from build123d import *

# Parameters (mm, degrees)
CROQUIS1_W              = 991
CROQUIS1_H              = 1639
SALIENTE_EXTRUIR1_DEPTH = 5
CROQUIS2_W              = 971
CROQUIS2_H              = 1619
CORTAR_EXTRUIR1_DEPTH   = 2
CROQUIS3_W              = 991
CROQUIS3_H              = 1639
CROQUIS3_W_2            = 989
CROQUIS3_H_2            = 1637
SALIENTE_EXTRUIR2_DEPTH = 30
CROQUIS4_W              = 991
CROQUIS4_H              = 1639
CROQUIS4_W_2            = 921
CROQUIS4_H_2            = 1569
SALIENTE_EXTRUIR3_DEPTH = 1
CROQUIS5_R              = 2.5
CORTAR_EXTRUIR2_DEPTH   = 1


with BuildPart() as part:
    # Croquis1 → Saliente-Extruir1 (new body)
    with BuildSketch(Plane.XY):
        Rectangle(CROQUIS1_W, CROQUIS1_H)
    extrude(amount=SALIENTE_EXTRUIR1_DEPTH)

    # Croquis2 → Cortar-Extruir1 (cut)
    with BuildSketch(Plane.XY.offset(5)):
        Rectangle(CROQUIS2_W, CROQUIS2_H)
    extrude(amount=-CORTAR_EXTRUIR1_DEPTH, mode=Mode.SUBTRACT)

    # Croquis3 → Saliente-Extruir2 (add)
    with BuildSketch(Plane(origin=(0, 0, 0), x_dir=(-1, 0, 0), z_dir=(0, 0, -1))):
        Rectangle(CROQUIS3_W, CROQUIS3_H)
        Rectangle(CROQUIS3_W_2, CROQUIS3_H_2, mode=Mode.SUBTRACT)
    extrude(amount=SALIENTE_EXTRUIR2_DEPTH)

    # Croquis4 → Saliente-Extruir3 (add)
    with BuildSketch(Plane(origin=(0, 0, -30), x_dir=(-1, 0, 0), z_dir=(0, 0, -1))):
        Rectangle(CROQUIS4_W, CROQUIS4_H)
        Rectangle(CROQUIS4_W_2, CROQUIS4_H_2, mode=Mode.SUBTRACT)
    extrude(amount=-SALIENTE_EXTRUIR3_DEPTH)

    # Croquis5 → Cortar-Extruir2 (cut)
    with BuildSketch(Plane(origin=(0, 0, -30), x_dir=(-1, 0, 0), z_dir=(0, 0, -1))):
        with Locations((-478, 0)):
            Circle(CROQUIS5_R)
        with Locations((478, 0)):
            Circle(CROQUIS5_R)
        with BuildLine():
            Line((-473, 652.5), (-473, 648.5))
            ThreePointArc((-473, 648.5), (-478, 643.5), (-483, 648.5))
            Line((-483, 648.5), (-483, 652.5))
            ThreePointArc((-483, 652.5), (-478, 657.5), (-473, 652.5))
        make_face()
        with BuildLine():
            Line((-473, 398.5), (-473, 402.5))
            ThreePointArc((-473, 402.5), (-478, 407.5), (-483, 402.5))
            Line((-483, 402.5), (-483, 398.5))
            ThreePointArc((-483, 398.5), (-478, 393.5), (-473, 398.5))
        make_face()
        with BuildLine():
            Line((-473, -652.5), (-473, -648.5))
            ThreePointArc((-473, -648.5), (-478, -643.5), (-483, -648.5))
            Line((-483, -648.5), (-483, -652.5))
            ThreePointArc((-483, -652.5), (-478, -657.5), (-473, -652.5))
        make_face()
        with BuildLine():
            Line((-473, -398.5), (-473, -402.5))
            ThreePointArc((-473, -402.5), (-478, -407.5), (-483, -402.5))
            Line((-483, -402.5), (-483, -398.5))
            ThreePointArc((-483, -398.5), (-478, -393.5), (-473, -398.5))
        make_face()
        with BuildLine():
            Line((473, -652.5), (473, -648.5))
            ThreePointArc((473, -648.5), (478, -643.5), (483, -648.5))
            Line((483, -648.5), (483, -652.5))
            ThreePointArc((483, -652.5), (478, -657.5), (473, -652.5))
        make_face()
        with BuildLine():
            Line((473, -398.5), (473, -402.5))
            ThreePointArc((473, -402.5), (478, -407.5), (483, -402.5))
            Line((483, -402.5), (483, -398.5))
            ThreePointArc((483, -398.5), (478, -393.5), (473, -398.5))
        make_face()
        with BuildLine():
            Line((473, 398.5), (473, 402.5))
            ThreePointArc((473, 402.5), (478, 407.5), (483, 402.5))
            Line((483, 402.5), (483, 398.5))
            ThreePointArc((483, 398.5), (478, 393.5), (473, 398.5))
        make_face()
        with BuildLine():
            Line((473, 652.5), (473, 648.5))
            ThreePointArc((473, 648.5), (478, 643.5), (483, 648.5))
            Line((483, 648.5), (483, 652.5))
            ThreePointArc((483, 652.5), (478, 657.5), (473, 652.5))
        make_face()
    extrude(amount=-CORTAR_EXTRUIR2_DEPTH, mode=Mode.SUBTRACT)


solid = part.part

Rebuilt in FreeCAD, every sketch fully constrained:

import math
import FreeCAD as App
import Part
import Sketcher
Q = App.Units.Quantity

doc = App.newDocument("Part")
params = doc.addObject("Spreadsheet::Sheet", "Params")
for row, (alias, value) in enumerate([
    ("sketch1_width", "991 mm"),
    ("sketch1_height", "1639 mm"),
    ("pad1_length", "5 mm"),
    ("sketch2_width", "971 mm"),
    ("sketch2_height", "1619 mm"),
    ("pocket1_length", "2 mm"),
    ("sketch3_width", "991 mm"),
    ("sketch3_width2", "989 mm"),
    ("sketch3_height", "1639 mm"),
    ("sketch3_height2", "1637 mm"),
    ("pad2_length", "30 mm"),
    ("sketch4_width", "991 mm"),
    ("sketch4_width2", "921 mm"),
    ("sketch4_height", "1639 mm"),
    ("sketch4_height2", "1569 mm"),
    ("pad3_length", "1 mm"),
    ("sketch5_diameter", "5 mm"),
    ("sketch5_radius", "5 mm"),
    ("sketch5_height", "4 mm"),
    ("pocket2_length", "1 mm"),
], start=1):
    params.set(f"A{row}", alias)
    params.set(f"B{row}", "=" + value)
    params.setAlias(f"B{row}", alias)

body = doc.addObject("PartDesign::Body", "Body")

# Sketch on XY plane
sketch1 = doc.addObject("Sketcher::SketchObject", "Sketch")
body.addObject(sketch1)
sketch1.AttachmentSupport = (doc.XY_Plane, [""])
sketch1.MapMode = "FlatFace"
sketch1.addGeometry(Part.LineSegment(App.Vector(-496, 820, 0), App.Vector(-496, -820, 0)), False)
sketch1.addGeometry(Part.LineSegment(App.Vector(-496, -820, 0), App.Vector(496, -820, 0)), False)
sketch1.addGeometry(Part.LineSegment(App.Vector(496, -820, 0), App.Vector(496, 820, 0)), False)
sketch1.addGeometry(Part.LineSegment(App.Vector(496, 820, 0), App.Vector(-496, 820, 0)), False)
sketch1.addConstraint(Sketcher.Constraint("Coincident", 0, 2, 1, 1))
sketch1.addConstraint(Sketcher.Constraint("Coincident", 1, 2, 2, 1))
sketch1.addConstraint(Sketcher.Constraint("Coincident", 2, 2, 3, 1))
sketch1.addConstraint(Sketcher.Constraint("Coincident", 3, 2, 0, 1))
sketch1.addConstraint(Sketcher.Constraint("Vertical", 0))
sketch1.addConstraint(Sketcher.Constraint("Horizontal", 1))
sketch1.addConstraint(Sketcher.Constraint("Vertical", 2))
sketch1.addConstraint(Sketcher.Constraint("Horizontal", 3))
sketch1.addConstraint(Sketcher.Constraint("Symmetric", 0, 2, 2, 2, -1, 1))
sketch1.addConstraint(Sketcher.Constraint("DistanceX", 1, 1, 1, 2, Q("991 mm")))
sketch1.addConstraint(Sketcher.Constraint("DistanceY", 0, 2, 0, 1, Q("1639 mm")))
sketch1.setExpression("Constraints[9]", "Params.sketch1_width")
sketch1.setExpression("Constraints[10]", "Params.sketch1_height")
pad1 = doc.addObject("PartDesign::Pad", "Pad")
body.addObject(pad1)
pad1.Profile = sketch1
pad1.setExpression("Length", "Params.pad1_length")

# Sketch on XY plane
sketch2 = doc.addObject("Sketcher::SketchObject", "Sketch001")
body.addObject(sketch2)
sketch2.AttachmentSupport = (doc.XY_Plane, [""])
sketch2.MapMode = "FlatFace"
sketch2.AttachmentOffset = App.Placement(App.Vector(0, 0, 5), App.Rotation())
sketch2.addGeometry(Part.LineSegment(App.Vector(-486, 810, 0), App.Vector(-486, -810, 0)), False)
sketch2.addGeometry(Part.LineSegment(App.Vector(-486, -810, 0), App.Vector(486, -810, 0)), False)
sketch2.addGeometry(Part.LineSegment(App.Vector(486, -810, 0), App.Vector(486, 810, 0)), False)
sketch2.addGeometry(Part.LineSegment(App.Vector(486, 810, 0), App.Vector(-486, 810, 0)), False)
sketch2.addConstraint(Sketcher.Constraint("Coincident", 0, 2, 1, 1))
sketch2.addConstraint(Sketcher.Constraint("Coincident", 1, 2, 2, 1))
sketch2.addConstraint(Sketcher.Constraint("Coincident", 2, 2, 3, 1))
sketch2.addConstraint(Sketcher.Constraint("Coincident", 3, 2, 0, 1))
sketch2.addConstraint(Sketcher.Constraint("Vertical", 0))
sketch2.addConstraint(Sketcher.Constraint("Horizontal", 1))
sketch2.addConstraint(Sketcher.Constraint("Vertical", 2))
sketch2.addConstraint(Sketcher.Constraint("Horizontal", 3))
sketch2.addConstraint(Sketcher.Constraint("Symmetric", 0, 2, 2, 2, -1, 1))
sketch2.addConstraint(Sketcher.Constraint("DistanceX", 1, 1, 1, 2, Q("971 mm")))
sketch2.addConstraint(Sketcher.Constraint("DistanceY", 0, 2, 0, 1, Q("1619 mm")))
sketch2.setExpression("Constraints[9]", "Params.sketch2_width")
sketch2.setExpression("Constraints[10]", "Params.sketch2_height")
pocket1 = doc.addObject("PartDesign::Pocket", "Pocket")
body.addObject(pocket1)
pocket1.Profile = sketch2
pocket1.setExpression("Length", "Params.pocket1_length")

# Sketch on XY plane
sketch3 = doc.addObject("Sketcher::SketchObject", "Sketch002")
body.addObject(sketch3)
sketch3.AttachmentSupport = (doc.XY_Plane, [""])
sketch3.MapMode = "FlatFace"
sketch3.addGeometry(Part.LineSegment(App.Vector(496, 820, 0), App.Vector(496, -820, 0)), False)
sketch3.addGeometry(Part.LineSegment(App.Vector(496, -820, 0), App.Vector(-496, -820, 0)), False)
sketch3.addGeometry(Part.LineSegment(App.Vector(-496, -820, 0), App.Vector(-496, 820, 0)), False)
sketch3.addGeometry(Part.LineSegment(App.Vector(-496, 820, 0), App.Vector(496, 820, 0)), False)
sketch3.addGeometry(Part.LineSegment(App.Vector(-494, -818, 0), App.Vector(494, -818, 0)), False)
sketch3.addGeometry(Part.LineSegment(App.Vector(494, -818, 0), App.Vector(494, 818, 0)), False)
sketch3.addGeometry(Part.LineSegment(App.Vector(494, 818, 0), App.Vector(-494, 818, 0)), False)
sketch3.addGeometry(Part.LineSegment(App.Vector(-494, 818, 0), App.Vector(-494, -818, 0)), False)
sketch3.addConstraint(Sketcher.Constraint("Coincident", 0, 2, 1, 1))
sketch3.addConstraint(Sketcher.Constraint("Coincident", 1, 2, 2, 1))
sketch3.addConstraint(Sketcher.Constraint("Coincident", 2, 2, 3, 1))
sketch3.addConstraint(Sketcher.Constraint("Coincident", 3, 2, 0, 1))
sketch3.addConstraint(Sketcher.Constraint("Coincident", 4, 2, 5, 1))
sketch3.addConstraint(Sketcher.Constraint("Coincident", 5, 2, 6, 1))
sketch3.addConstraint(Sketcher.Constraint("Coincident", 6, 2, 7, 1))
sketch3.addConstraint(Sketcher.Constraint("Coincident", 7, 2, 4, 1))
sketch3.addConstraint(Sketcher.Constraint("Vertical", 0))
sketch3.addConstraint(Sketcher.Constraint("Horizontal", 1))
sketch3.addConstraint(Sketcher.Constraint("Vertical", 2))
sketch3.addConstraint(Sketcher.Constraint("Horizontal", 3))
sketch3.addConstraint(Sketcher.Constraint("Horizontal", 4))
sketch3.addConstraint(Sketcher.Constraint("Vertical", 5))
sketch3.addConstraint(Sketcher.Constraint("Horizontal", 6))
sketch3.addConstraint(Sketcher.Constraint("Vertical", 7))
sketch3.addConstraint(Sketcher.Constraint("Symmetric", 0, 2, 2, 2, -1, 1))
sketch3.addConstraint(Sketcher.Constraint("Symmetric", 4, 2, 6, 2, -1, 1))
sketch3.addConstraint(Sketcher.Constraint("DistanceX", 1, 2, 1, 1, Q("991 mm")))
sketch3.addConstraint(Sketcher.Constraint("DistanceX", 4, 1, 4, 2, Q("989 mm")))
sketch3.addConstraint(Sketcher.Constraint("DistanceY", 0, 2, 0, 1, Q("1639 mm")))
sketch3.addConstraint(Sketcher.Constraint("DistanceY", 5, 1, 5, 2, Q("1637 mm")))
sketch3.setExpression("Constraints[18]", "Params.sketch3_width")
sketch3.setExpression("Constraints[19]", "Params.sketch3_width2")
sketch3.setExpression("Constraints[20]", "Params.sketch3_height")
sketch3.setExpression("Constraints[21]", "Params.sketch3_height2")
pad2 = doc.addObject("PartDesign::Pad", "Pad001")
body.addObject(pad2)
pad2.Profile = sketch3
pad2.setExpression("Length", "Params.pad2_length")
pad2.Reversed = True

# Sketch on XY plane
sketch4 = doc.addObject("Sketcher::SketchObject", "Sketch003")
body.addObject(sketch4)
sketch4.AttachmentSupport = (doc.XY_Plane, [""])
sketch4.MapMode = "FlatFace"
sketch4.AttachmentOffset = App.Placement(App.Vector(0, 0, -30), App.Rotation())
sketch4.addGeometry(Part.LineSegment(App.Vector(496, 820, 0), App.Vector(496, -820, 0)), False)
sketch4.addGeometry(Part.LineSegment(App.Vector(496, -820, 0), App.Vector(-496, -820, 0)), False)
sketch4.addGeometry(Part.LineSegment(App.Vector(-496, -820, 0), App.Vector(-496, 820, 0)), False)
sketch4.addGeometry(Part.LineSegment(App.Vector(-496, 820, 0), App.Vector(496, 820, 0)), False)
sketch4.addGeometry(Part.LineSegment(App.Vector(-460, -784, 0), App.Vector(460, -784, 0)), False)
sketch4.addGeometry(Part.LineSegment(App.Vector(460, -784, 0), App.Vector(460, 784, 0)), False)
sketch4.addGeometry(Part.LineSegment(App.Vector(460, 784, 0), App.Vector(-460, 784, 0)), False)
sketch4.addGeometry(Part.LineSegment(App.Vector(-460, 784, 0), App.Vector(-460, -784, 0)), False)
sketch4.addConstraint(Sketcher.Constraint("Coincident", 0, 2, 1, 1))
sketch4.addConstraint(Sketcher.Constraint("Coincident", 1, 2, 2, 1))
sketch4.addConstraint(Sketcher.Constraint("Coincident", 2, 2, 3, 1))
sketch4.addConstraint(Sketcher.Constraint("Coincident", 3, 2, 0, 1))
sketch4.addConstraint(Sketcher.Constraint("Coincident", 4, 2, 5, 1))
sketch4.addConstraint(Sketcher.Constraint("Coincident", 5, 2, 6, 1))
sketch4.addConstraint(Sketcher.Constraint("Coincident", 6, 2, 7, 1))
sketch4.addConstraint(Sketcher.Constraint("Coincident", 7, 2, 4, 1))
sketch4.addConstraint(Sketcher.Constraint("Vertical", 0))
sketch4.addConstraint(Sketcher.Constraint("Horizontal", 1))
sketch4.addConstraint(Sketcher.Constraint("Vertical", 2))
sketch4.addConstraint(Sketcher.Constraint("Horizontal", 3))
sketch4.addConstraint(Sketcher.Constraint("Horizontal", 4))
sketch4.addConstraint(Sketcher.Constraint("Vertical", 5))
sketch4.addConstraint(Sketcher.Constraint("Horizontal", 6))
sketch4.addConstraint(Sketcher.Constraint("Vertical", 7))
sketch4.addConstraint(Sketcher.Constraint("Symmetric", 0, 2, 2, 2, -1, 1))
sketch4.addConstraint(Sketcher.Constraint("Symmetric", 4, 2, 6, 2, -1, 1))
sketch4.addConstraint(Sketcher.Constraint("DistanceX", 1, 2, 1, 1, Q("991 mm")))
sketch4.addConstraint(Sketcher.Constraint("DistanceX", 4, 1, 4, 2, Q("921 mm")))
sketch4.addConstraint(Sketcher.Constraint("DistanceY", 0, 2, 0, 1, Q("1639 mm")))
sketch4.addConstraint(Sketcher.Constraint("DistanceY", 5, 1, 5, 2, Q("1569 mm")))
sketch4.setExpression("Constraints[18]", "Params.sketch4_width")
sketch4.setExpression("Constraints[19]", "Params.sketch4_width2")
sketch4.setExpression("Constraints[20]", "Params.sketch4_height")
sketch4.setExpression("Constraints[21]", "Params.sketch4_height2")
pad3 = doc.addObject("PartDesign::Pad", "Pad002")
body.addObject(pad3)
pad3.Profile = sketch4
pad3.setExpression("Length", "Params.pad3_length")

# Sketch on XY plane
sketch5 = doc.addObject("Sketcher::SketchObject", "Sketch004")
body.addObject(sketch5)
sketch5.AttachmentSupport = (doc.XY_Plane, [""])
sketch5.MapMode = "FlatFace"
sketch5.AttachmentOffset = App.Placement(App.Vector(0, 0, -30), App.Rotation())
sketch5.addGeometry(Part.Circle(App.Vector(478, 0, 0), App.Vector(0, 0, 1), 2.5), False)
sketch5.addGeometry(Part.Circle(App.Vector(-478, 0, 0), App.Vector(0, 0, 1), 2.5), False)
sketch5.addGeometry(Part.LineSegment(App.Vector(473, 648.5, 0), App.Vector(473, 652.5, 0)), False)
sketch5.addGeometry(Part.ArcOfCircle(Part.Circle(App.Vector(478, 652.5, 0), App.Vector(0, 0, 1), 5), math.radians(0), math.radians(180)), False)
sketch5.addGeometry(Part.LineSegment(App.Vector(483, 652.5, 0), App.Vector(483, 648.5, 0)), False)
sketch5.addGeometry(Part.ArcOfCircle(Part.Circle(App.Vector(478, 648.5, 0), App.Vector(0, 0, 1), 5), math.radians(180), math.radians(360)), False)
sketch5.addGeometry(Part.LineSegment(App.Vector(473, 398.5, 0), App.Vector(473, 402.5, 0)), False)
sketch5.addGeometry(Part.ArcOfCircle(Part.Circle(App.Vector(478, 402.5, 0), App.Vector(0, 0, 1), 5), math.radians(0), math.radians(180)), False)
sketch5.addGeometry(Part.LineSegment(App.Vector(483, 402.5, 0), App.Vector(483, 398.5, 0)), False)
sketch5.addGeometry(Part.ArcOfCircle(Part.Circle(App.Vector(478, 398.5, 0), App.Vector(0, 0, 1), 5), math.radians(180), math.radians(360)), False)
sketch5.addGeometry(Part.LineSegment(App.Vector(473, -652.5, 0), App.Vector(473, -648.5, 0)), False)
sketch5.addGeometry(Part.ArcOfCircle(Part.Circle(App.Vector(478, -648.5, 0), App.Vector(0, 0, 1), 5), math.radians(0), math.radians(180)), False)
sketch5.addGeometry(Part.LineSegment(App.Vector(483, -648.5, 0), App.Vector(483, -652.5, 0)), False)
sketch5.addGeometry(Part.ArcOfCircle(Part.Circle(App.Vector(478, -652.5, 0), App.Vector(0, 0, 1), 5), math.radians(180), math.radians(360)), False)
sketch5.addGeometry(Part.LineSegment(App.Vector(473, -402.5, 0), App.Vector(473, -398.5, 0)), False)
sketch5.addGeometry(Part.ArcOfCircle(Part.Circle(App.Vector(478, -398.5, 0), App.Vector(0, 0, 1), 5), math.radians(0), math.radians(180)), False)
sketch5.addGeometry(Part.LineSegment(App.Vector(483, -398.5, 0), App.Vector(483, -402.5, 0)), False)
sketch5.addGeometry(Part.ArcOfCircle(Part.Circle(App.Vector(478, -402.5, 0), App.Vector(0, 0, 1), 5), math.radians(180), math.radians(360)), False)
sketch5.addGeometry(Part.LineSegment(App.Vector(-473, -648.5, 0), App.Vector(-473, -652.5, 0)), False)
sketch5.addGeometry(Part.ArcOfCircle(Part.Circle(App.Vector(-478, -652.5, 0), App.Vector(0, 0, 1), 5), math.radians(180), math.radians(360)), False)
sketch5.addGeometry(Part.LineSegment(App.Vector(-483, -652.5, 0), App.Vector(-483, -648.5, 0)), False)
sketch5.addGeometry(Part.ArcOfCircle(Part.Circle(App.Vector(-478, -648.5, 0), App.Vector(0, 0, 1), 5), math.radians(0), math.radians(180)), False)
sketch5.addGeometry(Part.LineSegment(App.Vector(-473, -398.5, 0), App.Vector(-473, -402.5, 0)), False)
sketch5.addGeometry(Part.ArcOfCircle(Part.Circle(App.Vector(-478, -402.5, 0), App.Vector(0, 0, 1), 5), math.radians(180), math.radians(360)), False)
sketch5.addGeometry(Part.LineSegment(App.Vector(-483, -402.5, 0), App.Vector(-483, -398.5, 0)), False)
sketch5.addGeometry(Part.ArcOfCircle(Part.Circle(App.Vector(-478, -398.5, 0), App.Vector(0, 0, 1), 5), math.radians(0), math.radians(180)), False)
sketch5.addGeometry(Part.LineSegment(App.Vector(-473, 402.5, 0), App.Vector(-473, 398.5, 0)), False)
sketch5.addGeometry(Part.ArcOfCircle(Part.Circle(App.Vector(-478, 398.5, 0), App.Vector(0, 0, 1), 5), math.radians(180), math.radians(360)), False)
sketch5.addGeometry(Part.LineSegment(App.Vector(-483, 398.5, 0), App.Vector(-483, 402.5, 0)), False)
sketch5.addGeometry(Part.ArcOfCircle(Part.Circle(App.Vector(-478, 402.5, 0), App.Vector(0, 0, 1), 5), math.radians(0), math.radians(180)), False)
sketch5.addGeometry(Part.LineSegment(App.Vector(-473, 652.5, 0), App.Vector(-473, 648.5, 0)), False)
sketch5.addGeometry(Part.ArcOfCircle(Part.Circle(App.Vector(-478, 648.5, 0), App.Vector(0, 0, 1), 5), math.radians(180), math.radians(360)), False)
sketch5.addGeometry(Part.LineSegment(App.Vector(-483, 648.5, 0), App.Vector(-483, 652.5, 0)), False)
sketch5.addGeometry(Part.ArcOfCircle(Part.Circle(App.Vector(-478, 652.5, 0), App.Vector(0, 0, 1), 5), math.radians(0), math.radians(180)), False)
sketch5.addConstraint(Sketcher.Constraint("Tangent", 2, 2, 3, 2))
sketch5.addConstraint(Sketcher.Constraint("Tangent", 3, 1, 4, 1))
sketch5.addConstraint(Sketcher.Constraint("Tangent", 4, 2, 5, 2))
sketch5.addConstraint(Sketcher.Constraint("Tangent", 5, 1, 2, 1))
sketch5.addConstraint(Sketcher.Constraint("Tangent", 6, 2, 7, 2))
sketch5.addConstraint(Sketcher.Constraint("Tangent", 7, 1, 8, 1))
sketch5.addConstraint(Sketcher.Constraint("Tangent", 8, 2, 9, 2))
sketch5.addConstraint(Sketcher.Constraint("Tangent", 9, 1, 6, 1))
sketch5.addConstraint(Sketcher.Constraint("Tangent", 10, 2, 11, 2))
sketch5.addConstraint(Sketcher.Constraint("Tangent", 11, 1, 12, 1))
sketch5.addConstraint(Sketcher.Constraint("Tangent", 12, 2, 13, 2))
sketch5.addConstraint(Sketcher.Constraint("Tangent", 13, 1, 10, 1))
sketch5.addConstraint(Sketcher.Constraint("Tangent", 14, 2, 15, 2))
sketch5.addConstraint(Sketcher.Constraint("Tangent", 15, 1, 16, 1))
sketch5.addConstraint(Sketcher.Constraint("Tangent", 16, 2, 17, 2))
sketch5.addConstraint(Sketcher.Constraint("Tangent", 17, 1, 14, 1))
sketch5.addConstraint(Sketcher.Constraint("Tangent", 18, 2, 19, 2))
sketch5.addConstraint(Sketcher.Constraint("Tangent", 19, 1, 20, 1))
sketch5.addConstraint(Sketcher.Constraint("Tangent", 20, 2, 21, 2))
sketch5.addConstraint(Sketcher.Constraint("Tangent", 21, 1, 18, 1))
sketch5.addConstraint(Sketcher.Constraint("Tangent", 22, 2, 23, 2))
sketch5.addConstraint(Sketcher.Constraint("Tangent", 23, 1, 24, 1))
sketch5.addConstraint(Sketcher.Constraint("Tangent", 24, 2, 25, 2))
sketch5.addConstraint(Sketcher.Constraint("Tangent", 25, 1, 22, 1))
sketch5.addConstraint(Sketcher.Constraint("Tangent", 26, 2, 27, 2))
sketch5.addConstraint(Sketcher.Constraint("Tangent", 27, 1, 28, 1))
sketch5.addConstraint(Sketcher.Constraint("Tangent", 28, 2, 29, 2))
sketch5.addConstraint(Sketcher.Constraint("Tangent", 29, 1, 26, 1))
sketch5.addConstraint(Sketcher.Constraint("Tangent", 30, 2, 31, 2))
sketch5.addConstraint(Sketcher.Constraint("Tangent", 31, 1, 32, 1))
sketch5.addConstraint(Sketcher.Constraint("Tangent", 32, 2, 33, 2))
sketch5.addConstraint(Sketcher.Constraint("Tangent", 33, 1, 30, 1))
sketch5.addConstraint(Sketcher.Constraint("Vertical", 2))
sketch5.addConstraint(Sketcher.Constraint("Vertical", 4))
sketch5.addConstraint(Sketcher.Constraint("Vertical", 6))
sketch5.addConstraint(Sketcher.Constraint("Vertical", 8))
sketch5.addConstraint(Sketcher.Constraint("Vertical", 10))
sketch5.addConstraint(Sketcher.Constraint("Vertical", 12))
sketch5.addConstraint(Sketcher.Constraint("Vertical", 14))
sketch5.addConstraint(Sketcher.Constraint("Vertical", 16))
sketch5.addConstraint(Sketcher.Constraint("Vertical", 18))
sketch5.addConstraint(Sketcher.Constraint("Vertical", 20))
sketch5.addConstraint(Sketcher.Constraint("Vertical", 22))
sketch5.addConstraint(Sketcher.Constraint("Vertical", 24))
sketch5.addConstraint(Sketcher.Constraint("Vertical", 26))
sketch5.addConstraint(Sketcher.Constraint("Vertical", 28))
sketch5.addConstraint(Sketcher.Constraint("Vertical", 30))
sketch5.addConstraint(Sketcher.Constraint("Vertical", 32))
sketch5.addConstraint(Sketcher.Constraint("Equal", 0, 1))
sketch5.addConstraint(Sketcher.Constraint("Equal", 5, 7))
sketch5.addConstraint(Sketcher.Constraint("Equal", 9, 11))
sketch5.addConstraint(Sketcher.Constraint("Equal", 13, 15))
sketch5.addConstraint(Sketcher.Constraint("Equal", 17, 19))
sketch5.addConstraint(Sketcher.Constraint("Equal", 21, 23))
sketch5.addConstraint(Sketcher.Constraint("Equal", 25, 27))
sketch5.addConstraint(Sketcher.Constraint("Equal", 29, 31))
sketch5.addConstraint(Sketcher.Constraint("Symmetric", 0, 3, 1, 3, -1, 1))
sketch5.addConstraint(Sketcher.Constraint("Symmetric", 3, 3, 19, 3, -1, 1))
sketch5.addConstraint(Sketcher.Constraint("Symmetric", 7, 3, 23, 3, -1, 1))
sketch5.addConstraint(Sketcher.Constraint("Symmetric", 15, 3, 27, 3, -1, 1))
sketch5.addConstraint(Sketcher.Constraint("Symmetric", 11, 3, 31, 3, -1, 1))
sketch5.addConstraint(Sketcher.Constraint("Symmetric", 13, 3, 19, 3, -2))
sketch5.addConstraint(Sketcher.Constraint("Symmetric", 17, 3, 23, 3, -2))
sketch5.addConstraint(Sketcher.Constraint("PointOnObject", 0, 3, -1))
sketch5.addConstraint(Sketcher.Constraint("Horizontal", 11, 3, 21, 3))
sketch5.addConstraint(Sketcher.Constraint("Horizontal", 15, 3, 25, 3))
sketch5.addConstraint(Sketcher.Constraint("Horizontal", 9, 3, 27, 3))
sketch5.addConstraint(Sketcher.Constraint("Horizontal", 7, 3, 29, 3))
sketch5.addConstraint(Sketcher.Constraint("Horizontal", 5, 3, 31, 3))
sketch5.addConstraint(Sketcher.Constraint("Horizontal", 3, 3, 33, 3))
sketch5.addConstraint(Sketcher.Constraint("Vertical", 0, 3, 3, 3))
sketch5.addConstraint(Sketcher.Constraint("Vertical", 5, 3, 7, 3))
sketch5.addConstraint(Sketcher.Constraint("Equal", 4, 6))
sketch5.addConstraint(Sketcher.Constraint("Diameter", 0, Q("5 mm")))
sketch5.addConstraint(Sketcher.Constraint("Radius", 3, Q("5 mm")))
sketch5.addConstraint(Sketcher.Constraint("DistanceY", 2, 1, 2, 2, Q("4 mm")))
sketch5.addConstraint(Sketcher.Constraint("DistanceX", -1, 1, 0, 3, Q("478 mm")))
sketch5.addConstraint(Sketcher.Constraint("DistanceY", 7, 3, 5, 3, Q("246 mm")))
sketch5.addConstraint(Sketcher.Constraint("DistanceY", 11, 3, 9, 3, Q("1047 mm")))
sketch5.setExpression("Constraints[73]", "Params.sketch5_diameter")
sketch5.setExpression("Constraints[74]", "Params.sketch5_radius")
sketch5.setExpression("Constraints[75]", "Params.sketch5_height")
pocket2 = doc.addObject("PartDesign::Pocket", "Pocket001")
body.addObject(pocket2)
pocket2.Profile = sketch5
pocket2.setExpression("Length", "Params.pocket2_length")
pocket2.Reversed = True

doc.recompute()
